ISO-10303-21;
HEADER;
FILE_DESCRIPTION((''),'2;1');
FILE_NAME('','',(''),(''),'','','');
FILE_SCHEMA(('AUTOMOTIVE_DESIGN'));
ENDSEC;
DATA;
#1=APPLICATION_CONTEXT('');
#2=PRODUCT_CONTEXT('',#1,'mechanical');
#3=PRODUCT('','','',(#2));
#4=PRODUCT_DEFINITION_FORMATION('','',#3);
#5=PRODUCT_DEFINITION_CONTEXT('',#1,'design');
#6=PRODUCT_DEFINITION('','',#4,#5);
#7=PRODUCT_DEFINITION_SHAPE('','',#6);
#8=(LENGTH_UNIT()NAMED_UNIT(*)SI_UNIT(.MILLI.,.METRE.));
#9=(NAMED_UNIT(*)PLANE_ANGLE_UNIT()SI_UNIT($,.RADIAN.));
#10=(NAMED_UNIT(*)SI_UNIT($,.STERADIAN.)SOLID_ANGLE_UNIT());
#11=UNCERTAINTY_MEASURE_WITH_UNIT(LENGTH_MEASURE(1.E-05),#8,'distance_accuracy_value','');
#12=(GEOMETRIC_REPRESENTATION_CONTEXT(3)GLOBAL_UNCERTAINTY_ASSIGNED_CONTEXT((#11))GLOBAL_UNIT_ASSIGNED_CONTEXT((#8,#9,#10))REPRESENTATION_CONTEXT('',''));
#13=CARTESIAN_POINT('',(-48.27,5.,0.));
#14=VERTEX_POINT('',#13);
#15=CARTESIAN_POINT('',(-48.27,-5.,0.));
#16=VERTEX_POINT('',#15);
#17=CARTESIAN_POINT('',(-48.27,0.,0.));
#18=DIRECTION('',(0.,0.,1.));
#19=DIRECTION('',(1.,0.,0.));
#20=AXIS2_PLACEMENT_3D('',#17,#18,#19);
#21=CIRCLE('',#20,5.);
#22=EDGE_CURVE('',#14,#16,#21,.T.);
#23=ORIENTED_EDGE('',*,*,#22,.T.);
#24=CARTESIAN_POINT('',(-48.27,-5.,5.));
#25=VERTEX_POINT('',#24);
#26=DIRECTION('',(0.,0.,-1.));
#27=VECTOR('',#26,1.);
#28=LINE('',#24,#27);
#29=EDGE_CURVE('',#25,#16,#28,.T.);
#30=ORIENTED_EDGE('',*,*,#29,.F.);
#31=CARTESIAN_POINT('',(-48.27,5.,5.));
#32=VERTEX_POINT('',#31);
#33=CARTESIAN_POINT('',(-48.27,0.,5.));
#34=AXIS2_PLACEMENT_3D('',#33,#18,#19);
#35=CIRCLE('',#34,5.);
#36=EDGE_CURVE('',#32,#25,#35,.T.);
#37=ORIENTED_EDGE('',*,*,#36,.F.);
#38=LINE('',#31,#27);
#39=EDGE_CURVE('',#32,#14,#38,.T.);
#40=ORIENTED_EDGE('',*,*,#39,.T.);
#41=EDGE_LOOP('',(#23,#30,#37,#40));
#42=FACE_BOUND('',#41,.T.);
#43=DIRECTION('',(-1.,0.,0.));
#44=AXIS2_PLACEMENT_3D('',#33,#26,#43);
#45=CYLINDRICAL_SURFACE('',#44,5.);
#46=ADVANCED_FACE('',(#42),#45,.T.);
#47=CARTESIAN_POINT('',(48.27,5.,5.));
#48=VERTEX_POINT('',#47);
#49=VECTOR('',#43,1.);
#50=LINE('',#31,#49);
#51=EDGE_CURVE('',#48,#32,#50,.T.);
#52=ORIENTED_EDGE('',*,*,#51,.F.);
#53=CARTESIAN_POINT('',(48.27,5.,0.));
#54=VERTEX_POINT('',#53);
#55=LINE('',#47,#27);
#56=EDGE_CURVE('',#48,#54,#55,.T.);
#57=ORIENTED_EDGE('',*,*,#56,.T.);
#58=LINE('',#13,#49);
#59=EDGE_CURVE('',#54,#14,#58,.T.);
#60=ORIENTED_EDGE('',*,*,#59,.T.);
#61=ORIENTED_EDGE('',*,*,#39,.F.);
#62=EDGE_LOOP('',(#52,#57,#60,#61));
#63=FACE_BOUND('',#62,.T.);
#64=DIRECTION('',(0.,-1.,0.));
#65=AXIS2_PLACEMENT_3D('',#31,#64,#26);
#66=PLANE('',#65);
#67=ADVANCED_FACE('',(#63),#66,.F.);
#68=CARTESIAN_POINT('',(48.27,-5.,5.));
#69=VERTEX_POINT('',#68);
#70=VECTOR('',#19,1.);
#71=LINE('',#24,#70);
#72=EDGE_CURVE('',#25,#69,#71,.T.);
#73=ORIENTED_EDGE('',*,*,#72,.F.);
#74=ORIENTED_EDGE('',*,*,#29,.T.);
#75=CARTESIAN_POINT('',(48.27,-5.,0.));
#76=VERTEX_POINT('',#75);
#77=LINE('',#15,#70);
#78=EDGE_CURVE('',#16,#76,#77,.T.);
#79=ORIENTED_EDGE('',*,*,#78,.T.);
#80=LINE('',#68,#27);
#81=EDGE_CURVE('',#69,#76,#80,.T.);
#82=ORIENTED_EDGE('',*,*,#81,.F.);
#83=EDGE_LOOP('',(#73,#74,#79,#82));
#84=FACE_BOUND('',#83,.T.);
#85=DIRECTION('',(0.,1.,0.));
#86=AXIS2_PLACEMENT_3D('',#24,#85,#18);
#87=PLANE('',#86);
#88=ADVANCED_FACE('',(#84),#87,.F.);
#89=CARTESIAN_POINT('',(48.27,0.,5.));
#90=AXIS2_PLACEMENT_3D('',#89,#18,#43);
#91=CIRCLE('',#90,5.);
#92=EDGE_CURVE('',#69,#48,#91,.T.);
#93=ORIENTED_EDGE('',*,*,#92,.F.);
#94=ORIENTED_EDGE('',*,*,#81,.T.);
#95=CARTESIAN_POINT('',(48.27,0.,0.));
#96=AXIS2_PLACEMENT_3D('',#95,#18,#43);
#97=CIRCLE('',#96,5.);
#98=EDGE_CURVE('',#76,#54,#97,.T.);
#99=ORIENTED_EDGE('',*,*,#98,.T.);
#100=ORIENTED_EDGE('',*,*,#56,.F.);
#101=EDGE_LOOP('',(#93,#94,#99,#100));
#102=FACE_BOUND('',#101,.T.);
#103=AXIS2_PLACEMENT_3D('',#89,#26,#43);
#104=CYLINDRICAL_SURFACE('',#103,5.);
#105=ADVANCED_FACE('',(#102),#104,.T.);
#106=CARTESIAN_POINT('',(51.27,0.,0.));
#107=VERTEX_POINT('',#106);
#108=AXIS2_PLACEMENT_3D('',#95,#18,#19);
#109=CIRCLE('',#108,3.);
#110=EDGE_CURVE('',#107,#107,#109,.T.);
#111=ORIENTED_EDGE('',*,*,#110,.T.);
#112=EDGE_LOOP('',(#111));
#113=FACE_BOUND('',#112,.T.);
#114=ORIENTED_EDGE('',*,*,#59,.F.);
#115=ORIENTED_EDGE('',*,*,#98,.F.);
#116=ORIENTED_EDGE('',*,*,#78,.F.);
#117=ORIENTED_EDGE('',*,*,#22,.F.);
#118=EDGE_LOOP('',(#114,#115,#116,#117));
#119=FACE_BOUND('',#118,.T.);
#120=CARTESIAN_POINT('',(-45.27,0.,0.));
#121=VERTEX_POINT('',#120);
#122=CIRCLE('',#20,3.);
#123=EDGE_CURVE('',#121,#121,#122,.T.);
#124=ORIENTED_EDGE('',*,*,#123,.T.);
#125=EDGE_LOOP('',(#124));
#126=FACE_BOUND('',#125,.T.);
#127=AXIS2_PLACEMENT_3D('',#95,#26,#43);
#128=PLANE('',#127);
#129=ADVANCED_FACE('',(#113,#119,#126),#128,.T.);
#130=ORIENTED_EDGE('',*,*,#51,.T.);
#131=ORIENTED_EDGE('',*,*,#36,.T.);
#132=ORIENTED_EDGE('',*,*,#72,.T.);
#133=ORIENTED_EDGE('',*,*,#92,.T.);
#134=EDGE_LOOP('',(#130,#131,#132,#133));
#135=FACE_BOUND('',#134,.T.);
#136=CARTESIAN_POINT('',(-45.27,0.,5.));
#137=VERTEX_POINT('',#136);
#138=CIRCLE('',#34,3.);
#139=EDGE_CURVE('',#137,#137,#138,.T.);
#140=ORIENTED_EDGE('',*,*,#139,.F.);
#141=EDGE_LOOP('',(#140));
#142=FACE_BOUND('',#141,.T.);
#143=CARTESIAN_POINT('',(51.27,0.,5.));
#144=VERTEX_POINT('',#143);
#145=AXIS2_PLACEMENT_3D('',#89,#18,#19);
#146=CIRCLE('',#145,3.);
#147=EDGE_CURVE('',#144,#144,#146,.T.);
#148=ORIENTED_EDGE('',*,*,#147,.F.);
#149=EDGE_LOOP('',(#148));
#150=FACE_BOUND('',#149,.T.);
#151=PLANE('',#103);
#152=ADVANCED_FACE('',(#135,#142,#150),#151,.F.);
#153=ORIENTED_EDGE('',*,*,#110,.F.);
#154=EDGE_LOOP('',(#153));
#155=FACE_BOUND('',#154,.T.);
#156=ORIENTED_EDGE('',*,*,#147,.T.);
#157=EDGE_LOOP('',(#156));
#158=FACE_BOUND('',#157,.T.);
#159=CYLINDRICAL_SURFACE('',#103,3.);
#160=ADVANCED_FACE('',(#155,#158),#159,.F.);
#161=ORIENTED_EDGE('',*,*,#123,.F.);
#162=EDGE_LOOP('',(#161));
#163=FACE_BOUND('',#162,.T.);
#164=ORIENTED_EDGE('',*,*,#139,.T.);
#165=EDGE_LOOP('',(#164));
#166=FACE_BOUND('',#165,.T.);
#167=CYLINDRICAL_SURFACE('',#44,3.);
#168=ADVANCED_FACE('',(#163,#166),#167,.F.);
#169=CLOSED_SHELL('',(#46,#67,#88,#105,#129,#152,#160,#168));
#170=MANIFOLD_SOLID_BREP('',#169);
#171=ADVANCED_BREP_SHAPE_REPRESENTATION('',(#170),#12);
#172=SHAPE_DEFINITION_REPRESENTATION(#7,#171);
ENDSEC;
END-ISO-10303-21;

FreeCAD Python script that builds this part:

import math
import FreeCAD as App
import Part
import Sketcher

V = App.Vector
Q = App.Units.Quantity

doc = App.newDocument("Part")
body = doc.addObject("PartDesign::Body", "Body")

# Sketch on XY plane
sketch1 = doc.addObject("Sketcher::SketchObject", "Sketch")
body.addObject(sketch1)
sketch1.AttachmentSupport = (doc.XY_Plane, [""])
sketch1.MapMode = "FlatFace"
sketch1.addGeometry(Part.LineSegment(V(48.3, 5, 0), V(-48.3, 5, 0)), False)
sketch1.addGeometry(Part.ArcOfCircle(Part.Circle(V(-48.3, 0, 0), V(0, 0, 1), 5), math.radians(90), math.radians(270)), False)
sketch1.addGeometry(Part.LineSegment(V(-48.3, -5, 0), V(48.3, -5, 0)), False)
sketch1.addGeometry(Part.ArcOfCircle(Part.Circle(V(48.3, 0, 0), V(0, 0, 1), 5), math.radians(-90), math.radians(90)), False)
sketch1.addGeometry(Part.Circle(V(48.3, 0, 0), V(0, 0, 1), 3), False)
sketch1.addGeometry(Part.Circle(V(-48.3, 0, 0), V(0, 0, 1), 3), False)
sketch1.addConstraint(Sketcher.Constraint("Tangent", 0, 2, 1, 1))
sketch1.addConstraint(Sketcher.Constraint("Tangent", 1, 2, 2, 1))
sketch1.addConstraint(Sketcher.Constraint("Tangent", 2, 2, 3, 1))
sketch1.addConstraint(Sketcher.Constraint("Tangent", 3, 2, 0, 1))
sketch1.addConstraint(Sketcher.Constraint("Horizontal", 0))
sketch1.addConstraint(Sketcher.Constraint("Horizontal", 2))
sketch1.addConstraint(Sketcher.Constraint("Coincident", 4, 3, 3, 3))
sketch1.addConstraint(Sketcher.Constraint("Coincident", 5, 3, 1, 3))
sketch1.addConstraint(Sketcher.Constraint("Equal", 4, 5))
sketch1.addConstraint(Sketcher.Constraint("Symmetric", 1, 3, 3, 3, -1, 1))
sketch1.addConstraint(Sketcher.Constraint("Diameter", 4, Q("6 mm")))
sketch1.addConstraint(Sketcher.Constraint("Radius", 1, Q("5 mm")))
sketch1.addConstraint(Sketcher.Constraint("DistanceX", 0, 2, 0, 1, Q("96.54 mm")))
pad1 = doc.addObject("PartDesign::Pad", "Pad")
body.addObject(pad1)
pad1.Profile = sketch1
pad1.Length = 5

doc.recompute()
